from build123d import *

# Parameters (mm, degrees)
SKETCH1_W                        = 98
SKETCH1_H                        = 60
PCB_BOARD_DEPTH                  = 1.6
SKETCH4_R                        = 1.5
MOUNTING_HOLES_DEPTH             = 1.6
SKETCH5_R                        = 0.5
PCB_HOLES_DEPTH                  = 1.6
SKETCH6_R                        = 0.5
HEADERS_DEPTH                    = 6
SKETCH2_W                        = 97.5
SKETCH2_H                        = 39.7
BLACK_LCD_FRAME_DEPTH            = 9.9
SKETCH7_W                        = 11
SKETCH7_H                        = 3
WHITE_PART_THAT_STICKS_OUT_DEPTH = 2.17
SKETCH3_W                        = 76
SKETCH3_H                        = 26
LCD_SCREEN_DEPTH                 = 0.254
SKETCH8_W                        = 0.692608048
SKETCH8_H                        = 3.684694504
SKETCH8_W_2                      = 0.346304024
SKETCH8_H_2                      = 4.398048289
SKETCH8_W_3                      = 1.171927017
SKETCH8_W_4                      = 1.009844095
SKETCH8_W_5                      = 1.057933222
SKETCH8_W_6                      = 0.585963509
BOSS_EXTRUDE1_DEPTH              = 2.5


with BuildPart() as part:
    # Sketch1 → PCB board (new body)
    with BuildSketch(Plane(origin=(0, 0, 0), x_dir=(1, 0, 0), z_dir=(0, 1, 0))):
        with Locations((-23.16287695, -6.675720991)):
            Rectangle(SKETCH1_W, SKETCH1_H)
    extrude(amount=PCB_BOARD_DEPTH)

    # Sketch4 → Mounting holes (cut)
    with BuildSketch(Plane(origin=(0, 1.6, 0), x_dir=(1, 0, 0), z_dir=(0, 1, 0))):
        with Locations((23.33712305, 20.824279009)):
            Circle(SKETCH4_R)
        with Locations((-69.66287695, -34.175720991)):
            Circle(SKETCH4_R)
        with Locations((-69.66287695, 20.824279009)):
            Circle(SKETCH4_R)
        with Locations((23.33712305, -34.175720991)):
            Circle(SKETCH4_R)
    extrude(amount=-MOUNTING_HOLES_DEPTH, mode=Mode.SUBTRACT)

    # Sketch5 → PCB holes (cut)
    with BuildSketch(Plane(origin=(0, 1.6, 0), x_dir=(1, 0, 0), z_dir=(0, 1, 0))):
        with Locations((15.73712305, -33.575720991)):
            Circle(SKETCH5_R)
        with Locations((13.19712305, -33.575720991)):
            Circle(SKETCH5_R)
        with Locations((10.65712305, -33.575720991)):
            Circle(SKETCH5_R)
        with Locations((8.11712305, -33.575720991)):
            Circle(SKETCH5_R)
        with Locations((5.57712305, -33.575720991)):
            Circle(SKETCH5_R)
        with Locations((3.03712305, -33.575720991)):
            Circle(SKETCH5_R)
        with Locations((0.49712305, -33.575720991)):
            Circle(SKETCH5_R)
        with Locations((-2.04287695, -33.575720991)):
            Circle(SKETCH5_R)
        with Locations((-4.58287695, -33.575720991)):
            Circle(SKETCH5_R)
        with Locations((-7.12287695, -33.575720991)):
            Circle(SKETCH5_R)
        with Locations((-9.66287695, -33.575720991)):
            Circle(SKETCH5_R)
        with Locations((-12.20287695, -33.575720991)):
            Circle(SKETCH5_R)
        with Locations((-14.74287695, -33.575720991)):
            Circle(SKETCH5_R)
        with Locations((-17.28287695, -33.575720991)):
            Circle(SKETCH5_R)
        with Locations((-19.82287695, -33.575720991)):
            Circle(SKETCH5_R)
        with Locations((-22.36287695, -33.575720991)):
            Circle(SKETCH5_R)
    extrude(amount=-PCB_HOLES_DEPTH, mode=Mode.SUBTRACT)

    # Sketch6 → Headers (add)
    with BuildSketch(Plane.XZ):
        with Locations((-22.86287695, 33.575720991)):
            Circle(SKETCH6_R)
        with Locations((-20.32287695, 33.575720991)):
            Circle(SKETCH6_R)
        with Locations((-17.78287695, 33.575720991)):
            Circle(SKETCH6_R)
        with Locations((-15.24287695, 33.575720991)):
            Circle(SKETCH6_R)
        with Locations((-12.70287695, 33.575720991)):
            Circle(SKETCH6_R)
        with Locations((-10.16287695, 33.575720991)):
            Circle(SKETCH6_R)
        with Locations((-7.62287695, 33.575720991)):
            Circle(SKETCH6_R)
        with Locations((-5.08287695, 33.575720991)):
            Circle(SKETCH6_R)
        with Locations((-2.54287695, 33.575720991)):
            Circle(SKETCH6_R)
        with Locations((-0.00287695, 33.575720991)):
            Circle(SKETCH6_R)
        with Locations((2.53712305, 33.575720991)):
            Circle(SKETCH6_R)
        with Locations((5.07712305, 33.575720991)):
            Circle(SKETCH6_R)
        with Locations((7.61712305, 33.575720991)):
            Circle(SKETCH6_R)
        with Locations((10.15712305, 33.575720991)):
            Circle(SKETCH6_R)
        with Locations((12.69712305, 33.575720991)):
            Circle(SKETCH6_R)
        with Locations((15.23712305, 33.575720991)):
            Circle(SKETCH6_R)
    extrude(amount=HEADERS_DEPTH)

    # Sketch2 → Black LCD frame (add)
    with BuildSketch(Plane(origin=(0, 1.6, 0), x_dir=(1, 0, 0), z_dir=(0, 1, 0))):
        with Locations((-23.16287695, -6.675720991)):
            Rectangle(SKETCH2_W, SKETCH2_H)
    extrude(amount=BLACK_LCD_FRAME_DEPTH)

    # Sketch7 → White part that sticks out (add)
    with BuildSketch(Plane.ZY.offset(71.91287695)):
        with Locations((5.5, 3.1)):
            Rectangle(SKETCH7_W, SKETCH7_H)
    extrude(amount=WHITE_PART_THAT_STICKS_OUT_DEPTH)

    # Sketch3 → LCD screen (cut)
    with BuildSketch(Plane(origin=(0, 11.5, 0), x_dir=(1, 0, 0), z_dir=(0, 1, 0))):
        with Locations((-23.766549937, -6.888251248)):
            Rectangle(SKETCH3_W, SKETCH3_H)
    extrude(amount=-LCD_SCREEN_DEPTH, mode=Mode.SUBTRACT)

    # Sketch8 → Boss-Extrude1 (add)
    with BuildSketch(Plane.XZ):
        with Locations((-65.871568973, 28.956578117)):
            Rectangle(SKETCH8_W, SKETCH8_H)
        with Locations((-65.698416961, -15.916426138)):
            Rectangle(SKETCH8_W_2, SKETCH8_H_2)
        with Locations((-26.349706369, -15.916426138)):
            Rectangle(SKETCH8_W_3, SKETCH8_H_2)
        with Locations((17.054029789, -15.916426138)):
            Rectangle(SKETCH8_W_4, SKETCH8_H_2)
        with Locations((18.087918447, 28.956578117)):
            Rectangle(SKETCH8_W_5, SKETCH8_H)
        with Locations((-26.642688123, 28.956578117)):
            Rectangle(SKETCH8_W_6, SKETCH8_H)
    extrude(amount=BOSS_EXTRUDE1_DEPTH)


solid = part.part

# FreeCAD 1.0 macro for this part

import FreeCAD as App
import Part
import Sketcher
Q = App.Units.Quantity

doc = App.newDocument("Part")
params = doc.addObject("Spreadsheet::Sheet", "Params")
for row, (alias, value) in enumerate([
    ("sketch1_width", "98 mm"),
    ("sketch1_height", "60 mm"),
    ("pad1_length", "1.6 mm"),
    ("sketch2_diameter", "3 mm"),
    ("pocket1_length", "1.6 mm"),
    ("sketch3_diameter", "1 mm"),
    ("pocket2_length", "1.6 mm"),
    ("sketch4_diameter", "1 mm"),
    ("pad2_length", "6 mm"),
    ("sketch5_width", "97.5 mm"),
    ("sketch5_height", "39.7 mm"),
    ("pad3_length", "9.9 mm"),
    ("sketch6_width", "3 mm"),
    ("sketch6_height", "11 mm"),
    ("pad4_length", "2.17 mm"),
    ("sketch7_width", "76 mm"),
    ("sketch7_height", "26 mm"),
    ("pocket3_length", "0.254 mm"),
    ("pad5_length", "2.5 mm"),
], start=1):
    params.set(f"A{row}", alias)
    params.set(f"B{row}", "=" + value)
    params.setAlias(f"B{row}", alias)

body = doc.addObject("PartDesign::Body", "Body")

# Sketch on XZ plane
sketch1 = body.newObject("Sketcher::SketchObject", "Sketch")
sketch1.AttachmentSupport = (doc.getObject("XZ_Plane"), [""])
sketch1.MapMode = "FlatFace"
sketch1.addGeometry(Part.LineSegment(App.Vector(-72.162877, -23.324279, 0), App.Vector(-72.162877, 36.675721, 0)), False)
sketch1.addGeometry(Part.LineSegment(App.Vector(-72.162877, 36.675721, 0), App.Vector(25.837123, 36.675721, 0)), False)
sketch1.addGeometry(Part.LineSegment(App.Vector(25.837123, 36.675721, 0), App.Vector(25.837123, -23.324279, 0)), False)
sketch1.addGeometry(Part.LineSegment(App.Vector(25.837123, -23.324279, 0), App.Vector(-72.162877, -23.324279, 0)), False)
sketch1.addConstraint(Sketcher.Constraint("Coincident", 0, 2, 1, 1))
sketch1.addConstraint(Sketcher.Constraint("Coincident", 1, 2, 2, 1))
sketch1.addConstraint(Sketcher.Constraint("Coincident", 2, 2, 3, 1))
sketch1.addConstraint(Sketcher.Constraint("Coincident", 3, 2, 0, 1))
sketch1.addConstraint(Sketcher.Constraint("Vertical", 0))
sketch1.addConstraint(Sketcher.Constraint("Horizontal", 1))
sketch1.addConstraint(Sketcher.Constraint("Vertical", 2))
sketch1.addConstraint(Sketcher.Constraint("Horizontal", 3))
sketch1.addConstraint(Sketcher.Constraint("DistanceX", 1, 1, 1, 2, Q("98 mm")))
sketch1.addConstraint(Sketcher.Constraint("DistanceY", 0, 1, 0, 2, Q("60 mm")))
sketch1.addConstraint(Sketcher.Constraint("DistanceY", -1, 1, 0, 2, Q("36.675721 mm")))
sketch1.addConstraint(Sketcher.Constraint("DistanceX", 0, 2, -1, 1, Q("72.162877 mm")))
sketch1.setExpression("Constraints[8]", "Params.sketch1_width")
sketch1.setExpression("Constraints[9]", "Params.sketch1_height")
pad1 = body.newObject("PartDesign::Pad", "Pad")
pad1.Profile = sketch1
pad1.setExpression("Length", "Params.pad1_length")
pad1.Reversed = True

# Sketch on XZ plane
sketch2 = body.newObject("Sketcher::SketchObject", "Sketch001")
sketch2.AttachmentSupport = (doc.getObject("XZ_Plane"), [""])
sketch2.MapMode = "FlatFace"
sketch2.AttachmentOffset = App.Placement(App.Vector(0, 0, -1.6), App.Rotation())
sketch2.addGeometry(Part.Circle(App.Vector(23.337123, -20.824279, 0), App.Vector(0, 0, 1), 1.5), False)
sketch2.addGeometry(Part.Circle(App.Vector(-69.662877, 34.175721, 0), App.Vector(0, 0, 1), 1.5), False)
sketch2.addGeometry(Part.Circle(App.Vector(-69.662877, -20.824279, 0), App.Vector(0, 0, 1), 1.5), False)
sketch2.addGeometry(Part.Circle(App.Vector(23.337123, 34.175721, 0), App.Vector(0, 0, 1), 1.5), False)
sketch2.addConstraint(Sketcher.Constraint("Equal", 0, 1))
sketch2.addConstraint(Sketcher.Constraint("Equal", 1, 2))
sketch2.addConstraint(Sketcher.Constraint("Equal", 2, 3))
sketch2.addConstraint(Sketcher.Constraint("Horizontal", 0, 3, 2, 3))
sketch2.addConstraint(Sketcher.Constraint("Horizontal", 1, 3, 3, 3))
sketch2.addConstraint(Sketcher.Constraint("Vertical", 1, 3, 2, 3))
sketch2.addConstraint(Sketcher.Constraint("Vertical", 0, 3, 3, 3))
sketch2.addConstraint(Sketcher.Constraint("Diameter", 0, Q("3 mm")))
sketch2.addConstraint(Sketcher.Constraint("DistanceX", 1, 3, 0, 3, Q("93 mm")))
sketch2.addConstraint(Sketcher.Constraint("DistanceY", 0, 3, 1, 3, Q("55 mm")))
sketch2.addConstraint(Sketcher.Constraint("DistanceY", 0, 3, -1, 1, Q("20.824279 mm")))
sketch2.addConstraint(Sketcher.Constraint("DistanceX", -1, 1, 0, 3, Q("23.337123 mm")))
sketch2.setExpression("Constraints[7]", "Params.sketch2_diameter")
pocket1 = body.newObject("PartDesign::Pocket", "Pocket")
pocket1.Profile = sketch2
pocket1.setExpression("Length", "Params.pocket1_length")
pocket1.Reversed = True

# Sketch on XZ plane
sketch3 = body.newObject("Sketcher::SketchObject", "Sketch002")
sketch3.AttachmentSupport = (doc.getObject("XZ_Plane"), [""])
sketch3.MapMode = "FlatFace"
sketch3.AttachmentOffset = App.Placement(App.Vector(0, 0, -1.6), App.Rotation())
sketch3.addGeometry(Part.Circle(App.Vector(15.737123, 33.575721, 0), App.Vector(0, 0, 1), 0.5), False)
sketch3.addGeometry(Part.Circle(App.Vector(13.197123, 33.575721, 0), App.Vector(0, 0, 1), 0.5), False)
sketch3.addGeometry(Part.Circle(App.Vector(10.657123, 33.575721, 0), App.Vector(0, 0, 1), 0.5), False)
sketch3.addGeometry(Part.Circle(App.Vector(8.117123, 33.575721, 0), App.Vector(0, 0, 1), 0.5), False)
sketch3.addGeometry(Part.Circle(App.Vector(5.577123, 33.575721, 0), App.Vector(0, 0, 1), 0.5), False)
sketch3.addGeometry(Part.Circle(App.Vector(3.037123, 33.575721, 0), App.Vector(0, 0, 1), 0.5), False)
sketch3.addGeometry(Part.Circle(App.Vector(0.497123, 33.575721, 0), App.Vector(0, 0, 1), 0.5), False)
sketch3.addGeometry(Part.Circle(App.Vector(-2.042877, 33.575721, 0), App.Vector(0, 0, 1), 0.5), False)
sketch3.addGeometry(Part.Circle(App.Vector(-4.582877, 33.575721, 0), App.Vector(0, 0, 1), 0.5), False)
sketch3.addGeometry(Part.Circle(App.Vector(-7.122877, 33.575721, 0), App.Vector(0, 0, 1), 0.5), False)
sketch3.addGeometry(Part.Circle(App.Vector(-9.662877, 33.575721, 0), App.Vector(0, 0, 1), 0.5), False)
sketch3.addGeometry(Part.Circle(App.Vector(-12.202877, 33.575721, 0), App.Vector(0, 0, 1), 0.5), False)
sketch3.addGeometry(Part.Circle(App.Vector(-14.742877, 33.575721, 0), App.Vector(0, 0, 1), 0.5), False)
sketch3.addGeometry(Part.Circle(App.Vector(-17.282877, 33.575721, 0), App.Vector(0, 0, 1), 0.5), False)
sketch3.addGeometry(Part.Circle(App.Vector(-19.822877, 33.575721, 0), App.Vector(0, 0, 1), 0.5), False)
sketch3.addGeometry(Part.Circle(App.Vector(-22.362877, 33.575721, 0), App.Vector(0, 0, 1), 0.5), False)
sketch3.addConstraint(Sketcher.Constraint("Equal", 0, 1))
sketch3.addConstraint(Sketcher.Constraint("Equal", 1, 2))
sketch3.addConstraint(Sketcher.Constraint("Equal", 2, 3))
sketch3.addConstraint(Sketcher.Constraint("Equal", 3, 4))
sketch3.addConstraint(Sketcher.Constraint("Equal", 4, 5))
sketch3.addConstraint(Sketcher.Constraint("Equal", 5, 6))
sketch3.addConstraint(Sketcher.Constraint("Equal", 6, 7))
sketch3.addConstraint(Sketcher.Constraint("Equal", 7, 8))
sketch3.addConstraint(Sketcher.Constraint("Equal", 8, 9))
sketch3.addConstraint(Sketcher.Constraint("Equal", 9, 10))
sketch3.addConstraint(Sketcher.Constraint("Equal", 10, 11))
sketch3.addConstraint(Sketcher.Constraint("Equal", 11, 12))
sketch3.addConstraint(Sketcher.Constraint("Equal", 12, 13))
sketch3.addConstraint(Sketcher.Constraint("Equal", 13, 14))
sketch3.addConstraint(Sketcher.Constraint("Equal", 14, 15))
sketch3.addConstraint(Sketcher.Constraint("Horizontal", 0, 3, 1, 3))
sketch3.addConstraint(Sketcher.Constraint("Horizontal", 1, 3, 2, 3))
sketch3.addConstraint(Sketcher.Constraint("Horizontal", 2, 3, 3, 3))
sketch3.addConstraint(Sketcher.Constraint("Horizontal", 3, 3, 4, 3))
sketch3.addConstraint(Sketcher.Constraint("Horizontal", 4, 3, 5, 3))
sketch3.addConstraint(Sketcher.Constraint("Horizontal", 5, 3, 6, 3))
sketch3.addConstraint(Sketcher.Constraint("Horizontal", 6, 3, 7, 3))
sketch3.addConstraint(Sketcher.Constraint("Horizontal", 7, 3, 8, 3))
sketch3.addConstraint(Sketcher.Constraint("Horizontal", 8, 3, 9, 3))
sketch3.addConstraint(Sketcher.Constraint("Horizontal", 9, 3, 10, 3))
sketch3.addConstraint(Sketcher.Constraint("Horizontal", 10, 3, 11, 3))
sketch3.addConstraint(Sketcher.Constraint("Horizontal", 11, 3, 12, 3))
sketch3.addConstraint(Sketcher.Constraint("Horizontal", 12, 3, 13, 3))
sketch3.addConstraint(Sketcher.Constraint("Horizontal", 13, 3, 14, 3))
sketch3.addConstraint(Sketcher.Constraint("Horizontal", 14, 3, 15, 3))
sketch3.addConstraint(Sketcher.Constraint("Diameter", 0, Q("1 mm")))
sketch3.addConstraint(Sketcher.Constraint("DistanceX", 5, 3, 0, 3, Q("12.7 mm")))
sketch3.addConstraint(Sketcher.Constraint("DistanceX", 6, 3, 1, 3, Q("12.7 mm")))
sketch3.addConstraint(Sketcher.Constraint("DistanceX", 7, 3, 2, 3, Q("12.7 mm")))
sketch3.addConstraint(Sketcher.Constraint("DistanceX", 8, 3, 3, 3, Q("12.7 mm")))
sketch3.addConstraint(Sketcher.Constraint("DistanceX", 9, 3, 4, 3, Q("12.7 mm")))
sketch3.addConstraint(Sketcher.Constraint("DistanceX", 10, 3, 5, 3, Q("12.7 mm")))
sketch3.addConstraint(Sketcher.Constraint("DistanceX", 11, 3, 6, 3, Q("12.7 mm")))
sketch3.addConstraint(Sketcher.Constraint("DistanceX", 12, 3, 7, 3, Q("12.7 mm")))
sketch3.addConstraint(Sketcher.Constraint("DistanceX", 13, 3, 8, 3, Q("12.7 mm")))
sketch3.addConstraint(Sketcher.Constraint("DistanceX", 14, 3, 9, 3, Q("12.7 mm")))
sketch3.addConstraint(Sketcher.Constraint("DistanceX", 15, 3, 10, 3, Q("12.7 mm")))
sketch3.addConstraint(Sketcher.Constraint("DistanceX", 1, 3, 0, 3, Q("2.54 mm")))
sketch3.addConstraint(Sketcher.Constraint("DistanceX", 2, 3, 1, 3, Q("2.54 mm")))
sketch3.addConstraint(Sketcher.Constraint("DistanceX", 3, 3, 2, 3, Q("2.54 mm")))
sketch3.addConstraint(Sketcher.Constraint("DistanceX", 4, 3, 3, 3, Q("2.54 mm")))
sketch3.addConstraint(Sketcher.Constraint("DistanceY", -1, 1, 0, 3, Q("33.575721 mm")))
sketch3.addConstraint(Sketcher.Constraint("DistanceX", -1, 1, 0, 3, Q("15.737123 mm")))
sketch3.setExpression("Constraints[30]", "Params.sketch3_diameter")
pocket2 = body.newObject("PartDesign::Pocket", "Pocket001")
pocket2.Profile = sketch3
pocket2.setExpression("Length", "Params.pocket2_length")
pocket2.Reversed = True

# Sketch on XZ plane
sketch4 = body.newObject("Sketcher::SketchObject", "Sketch003")
sketch4.AttachmentSupport = (doc.getObject("XZ_Plane"), [""])
sketch4.MapMode = "FlatFace"
sketch4.addGeometry(Part.Circle(App.Vector(-22.862877, 33.575721, 0), App.Vector(0, 0, 1), 0.5), False)
sketch4.addGeometry(Part.Circle(App.Vector(-20.322877, 33.575721, 0), App.Vector(0, 0, 1), 0.5), False)
sketch4.addGeometry(Part.Circle(App.Vector(-17.782877, 33.575721, 0), App.Vector(0, 0, 1), 0.5), False)
sketch4.addGeometry(Part.Circle(App.Vector(-15.242877, 33.575721, 0), App.Vector(0, 0, 1), 0.5), False)
sketch4.addGeometry(Part.Circle(App.Vector(-12.702877, 33.575721, 0), App.Vector(0, 0, 1), 0.5), False)
sketch4.addGeometry(Part.Circle(App.Vector(-10.162877, 33.575721, 0), App.Vector(0, 0, 1), 0.5), False)
sketch4.addGeometry(Part.Circle(App.Vector(-7.622877, 33.575721, 0), App.Vector(0, 0, 1), 0.5), False)
sketch4.addGeometry(Part.Circle(App.Vector(-5.082877, 33.575721, 0), App.Vector(0, 0, 1), 0.5), False)
sketch4.addGeometry(Part.Circle(App.Vector(-2.542877, 33.575721, 0), App.Vector(0, 0, 1), 0.5), False)
sketch4.addGeometry(Part.Circle(App.Vector(-0.002877, 33.575721, 0), App.Vector(0, 0, 1), 0.5), False)
sketch4.addGeometry(Part.Circle(App.Vector(2.537123, 33.575721, 0), App.Vector(0, 0, 1), 0.5), False)
sketch4.addGeometry(Part.Circle(App.Vector(5.077123, 33.575721, 0), App.Vector(0, 0, 1), 0.5), False)
sketch4.addGeometry(Part.Circle(App.Vector(7.617123, 33.575721, 0), App.Vector(0, 0, 1), 0.5), False)
sketch4.addGeometry(Part.Circle(App.Vector(10.157123, 33.575721, 0), App.Vector(0, 0, 1), 0.5), False)
sketch4.addGeometry(Part.Circle(App.Vector(12.697123, 33.575721, 0), App.Vector(0, 0, 1), 0.5), False)
sketch4.addGeometry(Part.Circle(App.Vector(15.237123, 33.575721, 0), App.Vector(0, 0, 1), 0.5), False)
sketch4.addConstraint(Sketcher.Constraint("Equal", 0, 1))
sketch4.addConstraint(Sketcher.Constraint("Equal", 1, 2))
sketch4.addConstraint(Sketcher.Constraint("Equal", 2, 3))
sketch4.addConstraint(Sketcher.Constraint("Equal", 3, 4))
sketch4.addConstraint(Sketcher.Constraint("Equal", 4, 5))
sketch4.addConstraint(Sketcher.Constraint("Equal", 5, 6))
sketch4.addConstraint(Sketcher.Constraint("Equal", 6, 7))
sketch4.addConstraint(Sketcher.Constraint("Equal", 7, 8))
sketch4.addConstraint(Sketcher.Constraint("Equal", 8, 9))
sketch4.addConstraint(Sketcher.Constraint("Equal", 9, 10))
sketch4.addConstraint(Sketcher.Constraint("Equal", 10, 11))
sketch4.addConstraint(Sketcher.Constraint("Equal", 11, 12))
sketch4.addConstraint(Sketcher.Constraint("Equal", 12, 13))
sketch4.addConstraint(Sketcher.Constraint("Equal", 13, 14))
sketch4.addConstraint(Sketcher.Constraint("Equal", 14, 15))
sketch4.addConstraint(Sketcher.Constraint("Horizontal", 0, 3, 1, 3))
sketch4.addConstraint(Sketcher.Constraint("Horizontal", 1, 3, 2, 3))
sketch4.addConstraint(Sketcher.Constraint("Horizontal", 2, 3, 3, 3))
sketch4.addConstraint(Sketcher.Constraint("Horizontal", 3, 3, 4, 3))
sketch4.addConstraint(Sketcher.Constraint("Horizontal", 4, 3, 5, 3))
sketch4.addConstraint(Sketcher.Constraint("Horizontal", 5, 3, 6, 3))
sketch4.addConstraint(Sketcher.Constraint("Horizontal", 6, 3, 7, 3))
sketch4.addConstraint(Sketcher.Constraint("Horizontal", 7, 3, 8, 3))
sketch4.addConstraint(Sketcher.Constraint("Horizontal", 8, 3, 9, 3))
sketch4.addConstraint(Sketcher.Constraint("Horizontal", 9, 3, 10, 3))
sketch4.addConstraint(Sketcher.Constraint("Horizontal", 10, 3, 11, 3))
sketch4.addConstraint(Sketcher.Constraint("Horizontal", 11, 3, 12, 3))
sketch4.addConstraint(Sketcher.Constraint("Horizontal", 12, 3, 13, 3))
sketch4.addConstraint(Sketcher.Constraint("Horizontal", 13, 3, 14, 3))
sketch4.addConstraint(Sketcher.Constraint("Horizontal", 14, 3, 15, 3))
sketch4.addConstraint(Sketcher.Constraint("Diameter", 0, Q("1 mm")))
sketch4.addConstraint(Sketcher.Constraint("DistanceX", 0, 3, 5, 3, Q("12.7 mm")))
sketch4.addConstraint(Sketcher.Constraint("DistanceX", 1, 3, 6, 3, Q("12.7 mm")))
sketch4.addConstraint(Sketcher.Constraint("DistanceX", 2, 3, 7, 3, Q("12.7 mm")))
sketch4.addConstraint(Sketcher.Constraint("DistanceX", 3, 3, 8, 3, Q("12.7 mm")))
sketch4.addConstraint(Sketcher.Constraint("DistanceX", 4, 3, 9, 3, Q("12.7 mm")))
sketch4.addConstraint(Sketcher.Constraint("DistanceX", 5, 3, 10, 3, Q("12.7 mm")))
sketch4.addConstraint(Sketcher.Constraint("DistanceX", 6, 3, 11, 3, Q("12.7 mm")))
sketch4.addConstraint(Sketcher.Constraint("DistanceX", 7, 3, 12, 3, Q("12.7 mm")))
sketch4.addConstraint(Sketcher.Constraint("DistanceX", 8, 3, 13, 3, Q("12.7 mm")))
sketch4.addConstraint(Sketcher.Constraint("DistanceX", 9, 3, 14, 3, Q("12.7 mm")))
sketch4.addConstraint(Sketcher.Constraint("DistanceX", 10, 3, 15, 3, Q("12.7 mm")))
sketch4.addConstraint(Sketcher.Constraint("DistanceX", 0, 3, 1, 3, Q("2.54 mm")))
sketch4.addConstraint(Sketcher.Constraint("DistanceX", 1, 3, 2, 3, Q("2.54 mm")))
sketch4.addConstraint(Sketcher.Constraint("DistanceX", 2, 3, 3, 3, Q("2.54 mm")))
sketch4.addConstraint(Sketcher.Constraint("DistanceX", 3, 3, 4, 3, Q("2.54 mm")))
sketch4.addConstraint(Sketcher.Constraint("DistanceY", -1, 1, 0, 3, Q("33.575721 mm")))
sketch4.addConstraint(Sketcher.Constraint("DistanceX", 0, 3, -1, 1, Q("22.862877 mm")))
sketch4.setExpression("Constraints[30]", "Params.sketch4_diameter")
pad2 = body.newObject("PartDesign::Pad", "Pad001")
pad2.Profile = sketch4
pad2.setExpression("Length", "Params.pad2_length")

# Sketch on XZ plane
sketch5 = body.newObject("Sketcher::SketchObject", "Sketch004")
sketch5.AttachmentSupport = (doc.getObject("XZ_Plane"), [""])
sketch5.MapMode = "FlatFace"
sketch5.AttachmentOffset = App.Placement(App.Vector(0, 0, -1.6), App.Rotation())
sketch5.addGeometry(Part.LineSegment(App.Vector(-71.912877, -13.174279, 0), App.Vector(-71.912877, 26.525721, 0)), False)
sketch5.addGeometry(Part.LineSegment(App.Vector(-71.912877, 26.525721, 0), App.Vector(25.587123, 26.525721, 0)), False)
sketch5.addGeometry(Part.LineSegment(App.Vector(25.587123, 26.525721, 0), App.Vector(25.587123, -13.174279, 0)), False)
sketch5.addGeometry(Part.LineSegment(App.Vector(25.587123, -13.174279, 0), App.Vector(-71.912877, -13.174279, 0)), False)
sketch5.addConstraint(Sketcher.Constraint("Coincident", 0, 2, 1, 1))
sketch5.addConstraint(Sketcher.Constraint("Coincident", 1, 2, 2, 1))
sketch5.addConstraint(Sketcher.Constraint("Coincident", 2, 2, 3, 1))
sketch5.addConstraint(Sketcher.Constraint("Coincident", 3, 2, 0, 1))
sketch5.addConstraint(Sketcher.Constraint("Vertical", 0))
sketch5.addConstraint(Sketcher.Constraint("Horizontal", 1))
sketch5.addConstraint(Sketcher.Constraint("Vertical", 2))
sketch5.addConstraint(Sketcher.Constraint("Horizontal", 3))
sketch5.addConstraint(Sketcher.Constraint("DistanceX", 1, 1, 1, 2, Q("97.5 mm")))
sketch5.addConstraint(Sketcher.Constraint("DistanceY", 0, 1, 0, 2, Q("39.7 mm")))
sketch5.addConstraint(Sketcher.Constraint("DistanceY", -1, 1, 0, 2, Q("26.525721 mm")))
sketch5.addConstraint(Sketcher.Constraint("DistanceX", 0, 2, -1, 1, Q("71.912877 mm")))
sketch5.setExpression("Constraints[8]", "Params.sketch5_width")
sketch5.setExpression("Constraints[9]", "Params.sketch5_height")
pad3 = body.newObject("PartDesign::Pad", "Pad002")
pad3.Profile = sketch5
pad3.setExpression("Length", "Params.pad3_length")
pad3.Reversed = True

# Sketch on YZ plane
sketch6 = body.newObject("Sketcher::SketchObject", "Sketch005")
sketch6.AttachmentSupport = (doc.getObject("YZ_Plane"), [""])
sketch6.MapMode = "FlatFace"
sketch6.AttachmentOffset = App.Placement(App.Vector(0, 0, -71.912877), App.Rotation())
sketch6.addGeometry(Part.LineSegment(App.Vector(4.6, 0, 0), App.Vector(1.6, 0, 0)), False)
sketch6.addGeometry(Part.LineSegment(App.Vector(1.6, 0, 0), App.Vector(1.6, 11, 0)), False)
sketch6.addGeometry(Part.LineSegment(App.Vector(1.6, 11, 0), App.Vector(4.6, 11, 0)), False)
sketch6.addGeometry(Part.LineSegment(App.Vector(4.6, 11, 0), App.Vector(4.6, 0, 0)), False)
sketch6.addConstraint(Sketcher.Constraint("Coincident", 0, 2, 1, 1))
sketch6.addConstraint(Sketcher.Constraint("Coincident", 1, 2, 2, 1))
sketch6.addConstraint(Sketcher.Constraint("Coincident", 2, 2, 3, 1))
sketch6.addConstraint(Sketcher.Constraint("Coincident", 3, 2, 0, 1))
sketch6.addConstraint(Sketcher.Constraint("Horizontal", 0))
sketch6.addConstraint(Sketcher.Constraint("Vertical", 1))
sketch6.addConstraint(Sketcher.Constraint("Horizontal", 2))
sketch6.addConstraint(Sketcher.Constraint("Vertical", 3))
sketch6.addConstraint(Sketcher.Constraint("PointOnObject", 0, 2, -1))
sketch6.addConstraint(Sketcher.Constraint("DistanceX", 0, 2, 0, 1, Q("3 mm")))
sketch6.addConstraint(Sketcher.Constraint("DistanceY", 1, 1, 1, 2, Q("11 mm")))
sketch6.addConstraint(Sketcher.Constraint("DistanceX", -1, 1, 0, 2, Q("1.6 mm")))
sketch6.setExpression("Constraints[9]", "Params.sketch6_width")
sketch6.setExpression("Constraints[10]", "Params.sketch6_height")
pad4 = body.newObject("PartDesign::Pad", "Pad003")
pad4.Profile = sketch6
pad4.setExpression("Length", "Params.pad4_length")
pad4.Reversed = True

# Sketch on XZ plane
sketch7 = body.newObject("Sketcher::SketchObject", "Sketch006")
sketch7.AttachmentSupport = (doc.getObject("XZ_Plane"), [""])
sketch7.MapMode = "FlatFace"
sketch7.AttachmentOffset = App.Placement(App.Vector(0, 0, -11.5), App.Rotation())
sketch7.addGeometry(Part.LineSegment(App.Vector(-61.76655, -6.111749, 0), App.Vector(-61.76655, 19.888251, 0)), False)
sketch7.addGeometry(Part.LineSegment(App.Vector(-61.76655, 19.888251, 0), App.Vector(14.23345, 19.888251, 0)), False)
sketch7.addGeometry(Part.LineSegment(App.Vector(14.23345, 19.888251, 0), App.Vector(14.23345, -6.111749, 0)), False)
sketch7.addGeometry(Part.LineSegment(App.Vector(14.23345, -6.111749, 0), App.Vector(-61.76655, -6.111749, 0)), False)
sketch7.addConstraint(Sketcher.Constraint("Coincident", 0, 2, 1, 1))
sketch7.addConstraint(Sketcher.Constraint("Coincident", 1, 2, 2, 1))
sketch7.addConstraint(Sketcher.Constraint("Coincident", 2, 2, 3, 1))
sketch7.addConstraint(Sketcher.Constraint("Coincident", 3, 2, 0, 1))
sketch7.addConstraint(Sketcher.Constraint("Vertical", 0))
sketch7.addConstraint(Sketcher.Constraint("Horizontal", 1))
sketch7.addConstraint(Sketcher.Constraint("Vertical", 2))
sketch7.addConstraint(Sketcher.Constraint("Horizontal", 3))
sketch7.addConstraint(Sketcher.Constraint("DistanceX", 1, 1, 1, 2, Q("76 mm")))
sketch7.addConstraint(Sketcher.Constraint("DistanceY", 0, 1, 0, 2, Q("26 mm")))
sketch7.addConstraint(Sketcher.Constraint("DistanceX", 0, 2, -1, 1, Q("61.76655 mm")))
sketch7.addConstraint(Sketcher.Constraint("DistanceY", -1, 1, 0, 2, Q("19.888251 mm")))
sketch7.setExpression("Constraints[8]", "Params.sketch7_width")
sketch7.setExpression("Constraints[9]", "Params.sketch7_height")
pocket3 = body.newObject("PartDesign::Pocket", "Pocket002")
pocket3.Profile = sketch7
pocket3.setExpression("Length", "Params.pocket3_length")
pocket3.Reversed = True

# Sketch on XZ plane
sketch8 = body.newObject("Sketcher::SketchObject", "Sketch007")
sketch8.AttachmentSupport = (doc.getObject("XZ_Plane"), [""])
sketch8.MapMode = "FlatFace"
sketch8.addGeometry(Part.LineSegment(App.Vector(-66.217873, 30.798925, 0), App.Vector(-66.217873, 27.114231, 0)), False)
sketch8.addGeometry(Part.LineSegment(App.Vector(-66.217873, 27.114231, 0), App.Vector(-65.525265, 27.114231, 0)), False)
sketch8.addGeometry(Part.LineSegment(App.Vector(-65.525265, 27.114231, 0), App.Vector(-65.525265, 30.798925, 0)), False)
sketch8.addGeometry(Part.LineSegment(App.Vector(-65.525265, 30.798925, 0), App.Vector(-66.217873, 30.798925, 0)), False)
sketch8.addGeometry(Part.LineSegment(App.Vector(-65.871569, -13.717402, 0), App.Vector(-65.871569, -18.11545, 0)), False)
sketch8.addGeometry(Part.LineSegment(App.Vector(-65.871569, -18.11545, 0), App.Vector(-65.525265, -18.11545, 0)), False)
sketch8.addGeometry(Part.LineSegment(App.Vector(-65.525265, -18.11545, 0), App.Vector(-65.525265, -13.717402, 0)), False)
sketch8.addGeometry(Part.LineSegment(App.Vector(-65.525265, -13.717402, 0), App.Vector(-65.871569, -13.717402, 0)), False)
sketch8.addGeometry(Part.LineSegment(App.Vector(-26.93567, -13.717402, 0), App.Vector(-26.93567, -18.11545, 0)), False)
sketch8.addGeometry(Part.LineSegment(App.Vector(-26.93567, -18.11545, 0), App.Vector(-25.763743, -18.11545, 0)), False)
sketch8.addGeometry(Part.LineSegment(App.Vector(-25.763743, -18.11545, 0), App.Vector(-25.763743, -13.717402, 0)), False)
sketch8.addGeometry(Part.LineSegment(App.Vector(-25.763743, -13.717402, 0), App.Vector(-26.93567, -13.717402, 0)), False)
sketch8.addGeometry(Part.LineSegment(App.Vector(16.549108, -13.717402, 0), App.Vector(16.549108, -18.11545, 0)), False)
sketch8.addGeometry(Part.LineSegment(App.Vector(16.549108, -18.11545, 0), App.Vector(17.558952, -18.11545, 0)), False)
sketch8.addGeometry(Part.LineSegment(App.Vector(17.558952, -18.11545, 0), App.Vector(17.558952, -13.717402, 0)), False)
sketch8.addGeometry(Part.LineSegment(App.Vector(17.558952, -13.717402, 0), App.Vector(16.549108, -13.717402, 0)), False)
sketch8.addGeometry(Part.LineSegment(App.Vector(17.558952, 30.798925, 0), App.Vector(17.558952, 27.114231, 0)), False)
sketch8.addGeometry(Part.LineSegment(App.Vector(17.558952, 27.114231, 0), App.Vector(18.616885, 27.114231, 0)), False)
sketch8.addGeometry(Part.LineSegment(App.Vector(18.616885, 27.114231, 0), App.Vector(18.616885, 30.798925, 0)), False)
sketch8.addGeometry(Part.LineSegment(App.Vector(18.616885, 30.798925, 0), App.Vector(17.558952, 30.798925, 0)), False)
sketch8.addGeometry(Part.LineSegment(App.Vector(-26.93567, 30.798925, 0), App.Vector(-26.93567, 27.114231, 0)), False)
sketch8.addGeometry(Part.LineSegment(App.Vector(-26.93567, 27.114231, 0), App.Vector(-26.349706, 27.114231, 0)), False)
sketch8.addGeometry(Part.LineSegment(App.Vector(-26.349706, 27.114231, 0), App.Vector(-26.349706, 30.798925, 0)), False)
sketch8.addGeometry(Part.LineSegment(App.Vector(-26.349706, 30.798925, 0), App.Vector(-26.93567, 30.798925, 0)), False)
sketch8.addConstraint(Sketcher.Constraint("Coincident", 0, 2, 1, 1))
sketch8.addConstraint(Sketcher.Constraint("Coincident", 1, 2, 2, 1))
sketch8.addConstraint(Sketcher.Constraint("Coincident", 2, 2, 3, 1))
sketch8.addConstraint(Sketcher.Constraint("Coincident", 3, 2, 0, 1))
sketch8.addConstraint(Sketcher.Constraint("Coincident", 4, 2, 5, 1))
sketch8.addConstraint(Sketcher.Constraint("Coincident", 5, 2, 6, 1))
sketch8.addConstraint(Sketcher.Constraint("Coincident", 6, 2, 7, 1))
sketch8.addConstraint(Sketcher.Constraint("Coincident", 7, 2, 4, 1))
sketch8.addConstraint(Sketcher.Constraint("Coincident", 8, 2, 9, 1))
sketch8.addConstraint(Sketcher.Constraint("Coincident", 9, 2, 10, 1))
sketch8.addConstraint(Sketcher.Constraint("Coincident", 10, 2, 11, 1))
sketch8.addConstraint(Sketcher.Constraint("Coincident", 11, 2, 8, 1))
sketch8.addConstraint(Sketcher.Constraint("Coincident", 12, 2, 13, 1))
sketch8.addConstraint(Sketcher.Constraint("Coincident", 13, 2, 14, 1))
sketch8.addConstraint(Sketcher.Constraint("Coincident", 14, 2, 15, 1))
sketch8.addConstraint(Sketcher.Constraint("Coincident", 15, 2, 12, 1))
sketch8.addConstraint(Sketcher.Constraint("Coincident", 16, 2, 17, 1))
sketch8.addConstraint(Sketcher.Constraint("Coincident", 17, 2, 18, 1))
sketch8.addConstraint(Sketcher.Constraint("Coincident", 18, 2, 19, 1))
sketch8.addConstraint(Sketcher.Constraint("Coincident", 19, 2, 16, 1))
sketch8.addConstraint(Sketcher.Constraint("Coincident", 20, 2, 21, 1))
sketch8.addConstraint(Sketcher.Constraint("Coincident", 21, 2, 22, 1))
sketch8.addConstraint(Sketcher.Constraint("Coincident", 22, 2, 23, 1))
sketch8.addConstraint(Sketcher.Constraint("Coincident", 23, 2, 20, 1))
sketch8.addConstraint(Sketcher.Constraint("Vertical", 0))
sketch8.addConstraint(Sketcher.Constraint("Horizontal", 1))
sketch8.addConstraint(Sketcher.Constraint("Vertical", 2))
sketch8.addConstraint(Sketcher.Constraint("Horizontal", 3))
sketch8.addConstraint(Sketcher.Constraint("Vertical", 4))
sketch8.addConstraint(Sketcher.Constraint("Horizontal", 5))
sketch8.addConstraint(Sketcher.Constraint("Vertical", 6))
sketch8.addConstraint(Sketcher.Constraint("Horizontal", 7))
sketch8.addConstraint(Sketcher.Constraint("Vertical", 8))
sketch8.addConstraint(Sketcher.Constraint("Horizontal", 9))
sketch8.addConstraint(Sketcher.Constraint("Vertical", 10))
sketch8.addConstraint(Sketcher.Constraint("Horizontal", 11))
sketch8.addConstraint(Sketcher.Constraint("Vertical", 12))
sketch8.addConstraint(Sketcher.Constraint("Horizontal", 13))
sketch8.addConstraint(Sketcher.Constraint("Vertical", 14))
sketch8.addConstraint(Sketcher.Constraint("Horizontal", 15))
sketch8.addConstraint(Sketcher.Constraint("Vertical", 16))
sketch8.addConstraint(Sketcher.Constraint("Horizontal", 17))
sketch8.addConstraint(Sketcher.Constraint("Vertical", 18))
sketch8.addConstraint(Sketcher.Constraint("Horizontal", 19))
sketch8.addConstraint(Sketcher.Constraint("Vertical", 20))
sketch8.addConstraint(Sketcher.Constraint("Horizontal", 21))
sketch8.addConstraint(Sketcher.Constraint("Vertical", 22))
sketch8.addConstraint(Sketcher.Constraint("Horizontal", 23))
sketch8.addConstraint(Sketcher.Constraint("Horizontal", 5, 2, 8, 2))
sketch8.addConstraint(Sketcher.Constraint("Horizontal", 7, 2, 10, 2))
sketch8.addConstraint(Sketcher.Constraint("Horizontal", 9, 2, 12, 2))
sketch8.addConstraint(Sketcher.Constraint("Horizontal", 11, 2, 14, 2))
sketch8.addConstraint(Sketcher.Constraint("Horizontal", 1, 2, 16, 2))
sketch8.addConstraint(Sketcher.Constraint("Horizontal", 3, 2, 18, 2))
sketch8.addConstraint(Sketcher.Constraint("Horizontal", 17, 2, 20, 2))
sketch8.addConstraint(Sketcher.Constraint("Horizontal", 19, 2, 22, 2))
sketch8.addConstraint(Sketcher.Constraint("Vertical", 2, 2, 5, 2))
sketch8.addConstraint(Sketcher.Constraint("Vertical", 14, 2, 16, 2))
sketch8.addConstraint(Sketcher.Constraint("Vertical", 11, 2, 20, 2))
sketch8.addConstraint(Sketcher.Constraint("DistanceX", 1, 1, 1, 2, Q("0.692608 mm")))
sketch8.addConstraint(Sketcher.Constraint("DistanceY", 4, 2, 4, 1, Q("4.398048 mm")))
sketch8.addConstraint(Sketcher.Constraint("DistanceY", 6, 2, -1, 1, Q("13.717402 mm")))
sketch8.addConstraint(Sketcher.Constraint("DistanceX", 4, 2, 8, 2, Q("38.935899 mm")))
sketch8.addConstraint(Sketcher.Constraint("DistanceX", 5, 1, 5, 2, Q("0.346304 mm")))
sketch8.addConstraint(Sketcher.Constraint("DistanceX", 9, 1, 9, 2, Q("1.171927 mm")))
sketch8.addConstraint(Sketcher.Constraint("DistanceX", 13, 1, 13, 2, Q("1.009844 mm")))
sketch8.addConstraint(Sketcher.Constraint("DistanceX", 17, 1, 17, 2, Q("1.057933 mm")))
sketch8.addConstraint(Sketcher.Constraint("DistanceX", 21, 1, 21, 2, Q("0.585964 mm")))
sketch8.addConstraint(Sketcher.Constraint("DistanceY", 0, 2, 0, 1, Q("3.684695 mm")))
sketch8.addConstraint(Sketcher.Constraint("DistanceY", -1, 1, 0, 2, Q("27.114231 mm")))
sketch8.addConstraint(Sketcher.Constraint("DistanceX", 4, 2, -1, 1, Q("65.871569 mm")))
sketch8.addConstraint(Sketcher.Constraint("DistanceX", -1, 1, 13, 2, Q("17.558952 mm")))
pad5 = body.newObject("PartDesign::Pad", "Pad004")
pad5.Profile = sketch8
pad5.setExpression("Length", "Params.pad5_length")

doc.recompute()
